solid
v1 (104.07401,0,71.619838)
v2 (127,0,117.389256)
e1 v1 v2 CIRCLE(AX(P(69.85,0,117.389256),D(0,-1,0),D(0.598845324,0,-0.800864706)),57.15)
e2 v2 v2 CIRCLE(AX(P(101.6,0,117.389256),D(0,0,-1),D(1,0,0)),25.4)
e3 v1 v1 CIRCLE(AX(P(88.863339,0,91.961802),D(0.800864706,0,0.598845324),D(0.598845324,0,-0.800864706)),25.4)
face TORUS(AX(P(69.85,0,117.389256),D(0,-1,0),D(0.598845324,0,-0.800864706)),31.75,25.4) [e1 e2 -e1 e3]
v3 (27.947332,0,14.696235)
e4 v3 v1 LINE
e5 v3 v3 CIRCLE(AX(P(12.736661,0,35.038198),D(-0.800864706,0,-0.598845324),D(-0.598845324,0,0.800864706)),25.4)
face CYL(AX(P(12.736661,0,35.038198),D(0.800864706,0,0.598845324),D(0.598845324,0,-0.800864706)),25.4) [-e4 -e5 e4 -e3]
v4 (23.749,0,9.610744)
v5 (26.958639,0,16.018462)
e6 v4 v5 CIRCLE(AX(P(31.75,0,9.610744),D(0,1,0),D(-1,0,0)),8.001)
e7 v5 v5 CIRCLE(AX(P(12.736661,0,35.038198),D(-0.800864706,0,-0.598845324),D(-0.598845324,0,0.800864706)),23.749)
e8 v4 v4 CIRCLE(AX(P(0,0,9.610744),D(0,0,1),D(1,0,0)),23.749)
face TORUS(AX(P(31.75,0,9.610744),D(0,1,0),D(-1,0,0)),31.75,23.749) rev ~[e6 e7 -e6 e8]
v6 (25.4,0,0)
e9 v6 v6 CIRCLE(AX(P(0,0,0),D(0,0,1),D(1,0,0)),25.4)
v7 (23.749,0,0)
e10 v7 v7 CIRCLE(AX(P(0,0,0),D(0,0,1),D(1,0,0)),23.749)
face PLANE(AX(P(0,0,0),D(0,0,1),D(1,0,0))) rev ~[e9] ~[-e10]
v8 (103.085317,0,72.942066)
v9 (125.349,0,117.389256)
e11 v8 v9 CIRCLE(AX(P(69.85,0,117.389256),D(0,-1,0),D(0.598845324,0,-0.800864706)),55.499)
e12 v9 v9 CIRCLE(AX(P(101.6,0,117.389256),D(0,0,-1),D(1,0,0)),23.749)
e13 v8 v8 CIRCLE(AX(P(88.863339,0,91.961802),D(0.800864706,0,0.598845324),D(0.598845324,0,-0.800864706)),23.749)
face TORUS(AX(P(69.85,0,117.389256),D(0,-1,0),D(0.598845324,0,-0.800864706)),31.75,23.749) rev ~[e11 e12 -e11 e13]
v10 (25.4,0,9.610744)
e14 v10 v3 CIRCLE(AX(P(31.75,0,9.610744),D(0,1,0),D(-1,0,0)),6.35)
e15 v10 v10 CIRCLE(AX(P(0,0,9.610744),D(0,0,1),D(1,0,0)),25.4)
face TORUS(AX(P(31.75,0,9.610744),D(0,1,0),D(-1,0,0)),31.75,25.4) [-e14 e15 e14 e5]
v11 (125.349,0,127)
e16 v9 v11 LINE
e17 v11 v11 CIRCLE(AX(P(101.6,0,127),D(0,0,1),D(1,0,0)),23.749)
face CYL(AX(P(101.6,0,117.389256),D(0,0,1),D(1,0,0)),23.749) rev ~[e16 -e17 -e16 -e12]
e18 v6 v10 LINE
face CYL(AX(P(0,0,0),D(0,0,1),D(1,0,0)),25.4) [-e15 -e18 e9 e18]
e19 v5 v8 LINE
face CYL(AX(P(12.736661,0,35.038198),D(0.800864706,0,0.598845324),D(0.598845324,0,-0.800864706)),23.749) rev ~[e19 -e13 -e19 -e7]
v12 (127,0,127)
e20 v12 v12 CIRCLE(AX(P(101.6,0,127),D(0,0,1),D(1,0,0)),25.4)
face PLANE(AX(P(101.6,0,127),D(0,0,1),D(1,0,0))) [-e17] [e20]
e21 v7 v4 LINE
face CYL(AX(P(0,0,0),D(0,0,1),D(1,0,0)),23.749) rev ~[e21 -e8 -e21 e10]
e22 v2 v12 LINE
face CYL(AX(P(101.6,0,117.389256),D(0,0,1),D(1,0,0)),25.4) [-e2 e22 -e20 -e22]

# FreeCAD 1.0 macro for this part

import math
import FreeCAD as App
import Part
import Sketcher
Q = App.Units.Quantity

doc = App.newDocument("Part")
body = doc.addObject("PartDesign::Body", "Body")

# Sketch on XY plane
sketch1 = body.newObject("Sketcher::SketchObject", "Sketch")
sketch1.AttachmentSupport = (doc.getObject("XY_Plane"), [""])
sketch1.MapMode = "FlatFace"
sketch1.addGeometry(Part.Circle(App.Vector(0, 0, 0), App.Vector(0, 0, 1), 25), False)
sketch1.addConstraint([
    Sketcher.Constraint("Coincident", 0, 3, -1, 1),
    Sketcher.Constraint("Diameter", 0, Q("2 in")),
])

# Sketch on XZ plane
sketch2 = body.newObject("Sketcher::SketchObject", "Sketch001")
sketch2.AttachmentSupport = (doc.getObject("XZ_Plane"), [""])
sketch2.MapMode = "FlatFace"
sketch2.addGeometry([
    Part.LineSegment(App.Vector(0, 0, 0), App.Vector(0, 10, 0)),  # 0
    Part.ArcOfCircle(Part.Circle(App.Vector(32, 10, 0), App.Vector(0, 0, 1), 32), math.radians(127), math.radians(180)),  # 1
    Part.LineSegment(App.Vector(13, 35, 0), App.Vector(89, 92, 0)),  # 2
    Part.ArcOfCircle(Part.Circle(App.Vector(70, 117, 0), App.Vector(0, 0, 1), 32), math.radians(-53), math.radians(0)),  # 3
    Part.LineSegment(App.Vector(102, 117, 0), App.Vector(102, 127, 0)),  # 4
], False)
sketch2.addConstraint([
    Sketcher.Constraint("Tangent", 0, 2, 1, 2),
    Sketcher.Constraint("Tangent", 1, 1, 2, 1),
    Sketcher.Constraint("Tangent", 2, 2, 3, 1),
    Sketcher.Constraint("Tangent", 3, 2, 4, 1),
    Sketcher.Constraint("Vertical", 0),
    Sketcher.Constraint("Vertical", 4),
    Sketcher.Constraint("Coincident", 0, 1, -1, 1),
    Sketcher.Constraint("Equal", 1, 3),
    Sketcher.Constraint("Equal", 0, 4),
    Sketcher.Constraint("Radius", 1, Q("1.25 in")),
    Sketcher.Constraint("DistanceX", -1, 1, 3, 2, Q("4 in")),
    Sketcher.Constraint("DistanceY", -1, 1, 4, 2, Q("5 in")),
    Sketcher.Constraint("DistanceY", -1, 1, 1, 1, 35.038198),
])
doc.recompute()

additivepipe = body.newObject("PartDesign::AdditivePipe", "AdditivePipe")
additivepipe.Profile = sketch1
additivepipe.Spine = (sketch2, ["Edge1", "Edge2", "Edge3", "Edge4", "Edge5"])

# Sketch on XY plane
sketch3 = body.newObject("Sketcher::SketchObject", "Sketch002")
sketch3.AttachmentSupport = (doc.getObject("XY_Plane"), [""])
sketch3.MapMode = "FlatFace"
sketch3.addGeometry(Part.Circle(App.Vector(0, 0, 0), App.Vector(0, 0, 1), 24), False)
sketch3.addConstraint([
    Sketcher.Constraint("Coincident", 0, 3, -1, 1),
    Sketcher.Constraint("Diameter", 0, Q("1.87 in")),
])

# Sketch on XZ plane
sketch4 = body.newObject("Sketcher::SketchObject", "Sketch003")
sketch4.AttachmentSupport = (doc.getObject("XZ_Plane"), [""])
sketch4.MapMode = "FlatFace"
sketch4.addGeometry([
    Part.LineSegment(App.Vector(0, 0, 0), App.Vector(0, 10, 0)),  # 0
    Part.ArcOfCircle(Part.Circle(App.Vector(32, 10, 0), App.Vector(0, 0, 1), 32), math.radians(127), math.radians(180)),  # 1
    Part.LineSegment(App.Vector(13, 35, 0), App.Vector(89, 92, 0)),  # 2
    Part.ArcOfCircle(Part.Circle(App.Vector(70, 117, 0), App.Vector(0, 0, 1), 32), math.radians(-53), math.radians(0)),  # 3
    Part.LineSegment(App.Vector(102, 117, 0), App.Vector(102, 127, 0)),  # 4
], False)
sketch4.addConstraint([
    Sketcher.Constraint("Tangent", 0, 2, 1, 2),
    Sketcher.Constraint("Tangent", 1, 1, 2, 1),
    Sketcher.Constraint("Tangent", 2, 2, 3, 1),
    Sketcher.Constraint("Tangent", 3, 2, 4, 1),
    Sketcher.Constraint("Vertical", 0),
    Sketcher.Constraint("Vertical", 4),
    Sketcher.Constraint("Coincident", 0, 1, -1, 1),
    Sketcher.Constraint("Equal", 1, 3),
    Sketcher.Constraint("Equal", 0, 4),
    Sketcher.Constraint("Radius", 1, Q("1.25 in")),
    Sketcher.Constraint("DistanceX", -1, 1, 3, 2, Q("4 in")),
    Sketcher.Constraint("DistanceY", -1, 1, 4, 2, Q("5 in")),
    Sketcher.Constraint("DistanceY", -1, 1, 1, 1, 35.038198),
])
doc.recompute()

subtractivepipe = body.newObject("PartDesign::SubtractivePipe", "SubtractivePipe")
subtractivepipe.Profile = sketch3
subtractivepipe.Spine = (sketch4, ["Edge1", "Edge2", "Edge3", "Edge4", "Edge5"])

doc.recompute()
